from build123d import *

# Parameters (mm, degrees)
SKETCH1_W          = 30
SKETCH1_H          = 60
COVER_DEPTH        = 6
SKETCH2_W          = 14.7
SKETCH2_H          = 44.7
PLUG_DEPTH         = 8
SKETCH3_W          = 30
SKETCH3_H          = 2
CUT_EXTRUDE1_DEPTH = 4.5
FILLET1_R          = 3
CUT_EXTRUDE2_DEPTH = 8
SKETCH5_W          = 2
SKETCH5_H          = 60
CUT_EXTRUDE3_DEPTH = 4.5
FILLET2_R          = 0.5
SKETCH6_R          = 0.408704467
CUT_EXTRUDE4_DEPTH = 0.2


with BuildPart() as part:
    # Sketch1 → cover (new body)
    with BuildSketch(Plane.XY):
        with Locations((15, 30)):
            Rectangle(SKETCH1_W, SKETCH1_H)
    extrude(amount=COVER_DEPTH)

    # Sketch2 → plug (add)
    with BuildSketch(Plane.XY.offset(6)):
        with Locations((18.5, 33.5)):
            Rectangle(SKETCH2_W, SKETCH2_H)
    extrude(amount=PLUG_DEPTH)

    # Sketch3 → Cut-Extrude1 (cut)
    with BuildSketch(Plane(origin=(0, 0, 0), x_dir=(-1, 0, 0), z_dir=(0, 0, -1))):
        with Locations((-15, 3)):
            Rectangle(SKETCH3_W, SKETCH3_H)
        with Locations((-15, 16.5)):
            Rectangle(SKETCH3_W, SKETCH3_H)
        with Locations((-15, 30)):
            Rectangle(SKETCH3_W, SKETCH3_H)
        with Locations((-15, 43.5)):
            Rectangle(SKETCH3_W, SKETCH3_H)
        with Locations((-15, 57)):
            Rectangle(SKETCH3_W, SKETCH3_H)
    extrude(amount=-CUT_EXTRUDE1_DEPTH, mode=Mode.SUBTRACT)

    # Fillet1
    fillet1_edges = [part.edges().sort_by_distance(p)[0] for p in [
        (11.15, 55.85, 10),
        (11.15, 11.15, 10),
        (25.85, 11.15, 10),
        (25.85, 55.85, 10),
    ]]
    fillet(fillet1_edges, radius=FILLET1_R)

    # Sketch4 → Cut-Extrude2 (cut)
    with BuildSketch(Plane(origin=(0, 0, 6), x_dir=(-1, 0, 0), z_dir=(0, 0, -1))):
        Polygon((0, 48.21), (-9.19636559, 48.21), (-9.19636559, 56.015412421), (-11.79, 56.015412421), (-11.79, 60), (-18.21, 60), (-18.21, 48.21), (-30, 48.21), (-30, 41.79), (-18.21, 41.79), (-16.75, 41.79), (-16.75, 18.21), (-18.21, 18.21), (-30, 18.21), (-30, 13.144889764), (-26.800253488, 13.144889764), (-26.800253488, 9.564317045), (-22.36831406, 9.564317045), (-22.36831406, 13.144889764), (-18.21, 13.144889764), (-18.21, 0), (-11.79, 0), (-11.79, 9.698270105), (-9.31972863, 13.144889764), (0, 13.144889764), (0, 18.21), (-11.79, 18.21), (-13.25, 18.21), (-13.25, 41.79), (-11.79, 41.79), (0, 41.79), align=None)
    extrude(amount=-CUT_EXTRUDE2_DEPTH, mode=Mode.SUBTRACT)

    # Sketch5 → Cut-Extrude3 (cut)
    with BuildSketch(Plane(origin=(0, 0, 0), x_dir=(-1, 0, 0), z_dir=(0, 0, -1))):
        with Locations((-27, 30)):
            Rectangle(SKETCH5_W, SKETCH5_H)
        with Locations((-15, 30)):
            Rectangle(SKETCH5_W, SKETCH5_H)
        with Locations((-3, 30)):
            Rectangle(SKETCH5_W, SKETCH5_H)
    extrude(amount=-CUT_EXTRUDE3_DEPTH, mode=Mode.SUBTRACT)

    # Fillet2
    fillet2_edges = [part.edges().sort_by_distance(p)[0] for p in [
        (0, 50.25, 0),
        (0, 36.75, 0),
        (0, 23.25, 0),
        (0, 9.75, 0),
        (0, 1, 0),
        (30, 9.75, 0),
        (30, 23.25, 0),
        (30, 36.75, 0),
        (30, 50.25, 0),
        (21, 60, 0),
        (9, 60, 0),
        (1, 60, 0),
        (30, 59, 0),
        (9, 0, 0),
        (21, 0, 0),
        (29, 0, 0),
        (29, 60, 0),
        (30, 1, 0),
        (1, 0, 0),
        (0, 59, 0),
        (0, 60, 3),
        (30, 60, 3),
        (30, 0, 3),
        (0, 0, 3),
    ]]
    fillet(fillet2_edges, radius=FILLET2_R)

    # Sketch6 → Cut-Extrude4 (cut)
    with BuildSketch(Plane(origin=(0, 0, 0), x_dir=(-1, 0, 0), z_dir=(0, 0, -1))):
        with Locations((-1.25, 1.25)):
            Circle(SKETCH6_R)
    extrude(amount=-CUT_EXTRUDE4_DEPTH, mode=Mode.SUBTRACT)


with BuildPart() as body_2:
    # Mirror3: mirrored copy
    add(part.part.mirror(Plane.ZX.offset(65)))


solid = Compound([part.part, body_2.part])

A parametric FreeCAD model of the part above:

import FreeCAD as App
import Part
import Sketcher

V = App.Vector
Q = App.Units.Quantity


def edges_at(feature, points):
    """Names of the edges that pass closest to the given points."""
    edges = feature.Shape.Edges
    near = lambda p: min(range(len(edges)), key=lambda i: edges[i].distToShape(Part.Vertex(*p))[0])
    return sorted({f"Edge{near(p) + 1}" for p in points})


def add_polygon(sketch, points):
    """Adds a closed chain of lines whose ends are joined by coincident constraints."""
    first, n = sketch.GeometryCount, len(points)
    for a, b in zip(points, points[1:] + points[:1]):
        sketch.addGeometry(Part.LineSegment(App.Vector(*a, 0), App.Vector(*b, 0)), False)
    for i in range(n):
        sketch.addConstraint(Sketcher.Constraint("Coincident", first + i, 2, first + (i + 1) % n, 1))

doc = App.newDocument("Part")
body = doc.addObject("PartDesign::Body", "Body")

sketch1 = doc.addObject("Sketcher::SketchObject", "Sketch")
body.addObject(sketch1)
sketch1.AttachmentSupport = (doc.XY_Plane, [""])
sketch1.MapMode = "FlatFace"
add_polygon(sketch1, [(0, 60), (0, 0), (30, 0), (30, 60)])
sketch1.addConstraint([
    Sketcher.Constraint("Vertical", 0),
    Sketcher.Constraint("Horizontal", 1),
    Sketcher.Constraint("Vertical", 2),
    Sketcher.Constraint("Horizontal", 3),
    Sketcher.Constraint("Coincident", 0, 2, -1, 1),
    Sketcher.Constraint("DistanceX", 1, 1, 1, 2, Q("30 mm")),
    Sketcher.Constraint("DistanceY", 0, 2, 0, 1, Q("60 mm")),
])
pad1 = doc.addObject("PartDesign::Pad", "Pad")
body.addObject(pad1)
pad1.Profile = sketch1
pad1.Length = 6

sketch2 = doc.addObject("Sketcher::SketchObject", "Sketch001")
body.addObject(sketch2)
sketch2.AttachmentSupport = (doc.XY_Plane, [""])
sketch2.MapMode = "FlatFace"
sketch2.AttachmentOffset = App.Placement(V(0, 0, 6), App.Rotation())
add_polygon(sketch2, [(11, 56), (11, 11), (26, 11), (26, 56)])
sketch2.addConstraint([
    Sketcher.Constraint("Vertical", 0),
    Sketcher.Constraint("Horizontal", 1),
    Sketcher.Constraint("Vertical", 2),
    Sketcher.Constraint("Horizontal", 3),
    Sketcher.Constraint("DistanceX", 1, 1, 1, 2, Q("14.7 mm")),
    Sketcher.Constraint("DistanceY", 0, 2, 0, 1, Q("44.7 mm")),
    Sketcher.Constraint("DistanceX", -1, 1, 0, 2, Q("11.15 mm")),
    Sketcher.Constraint("DistanceY", -1, 1, 0, 2, Q("11.15 mm")),
])
pad2 = doc.addObject("PartDesign::Pad", "Pad001")
body.addObject(pad2)
pad2.Profile = sketch2
pad2.Length = 8

sketch3 = doc.addObject("Sketcher::SketchObject", "Sketch002")
body.addObject(sketch3)
sketch3.AttachmentSupport = (doc.XY_Plane, [""])
sketch3.MapMode = "FlatFace"
add_polygon(sketch3, [(30, 4), (30, 2), (0, 2), (0, 4)])
add_polygon(sketch3, [(30, 17.5), (30, 15.5), (0, 15.5), (0, 17.5)])
add_polygon(sketch3, [(30, 31), (30, 29), (0, 29), (0, 31)])
add_polygon(sketch3, [(30, 44.5), (30, 42.5), (0, 42.5), (0, 44.5)])
add_polygon(sketch3, [(30, 58), (30, 56), (0, 56), (0, 58)])
sketch3.addConstraint([
    Sketcher.Constraint("Vertical", 0),
    Sketcher.Constraint("Horizontal", 1),
    Sketcher.Constraint("Vertical", 2),
    Sketcher.Constraint("Horizontal", 3),
    Sketcher.Constraint("Vertical", 4),
    Sketcher.Constraint("Horizontal", 5),
    Sketcher.Constraint("Vertical", 6),
    Sketcher.Constraint("Horizontal", 7),
    Sketcher.Constraint("Vertical", 8),
    Sketcher.Constraint("Horizontal", 9),
    Sketcher.Constraint("Vertical", 10),
    Sketcher.Constraint("Horizontal", 11),
    Sketcher.Constraint("Vertical", 12),
    Sketcher.Constraint("Horizontal", 13),
    Sketcher.Constraint("Vertical", 14),
    Sketcher.Constraint("Horizontal", 15),
    Sketcher.Constraint("Vertical", 16),
    Sketcher.Constraint("Horizontal", 17),
    Sketcher.Constraint("Vertical", 18),
    Sketcher.Constraint("Horizontal", 19),
    Sketcher.Constraint("PointOnObject", 1, 2, -2),
    Sketcher.Constraint("PointOnObject", 5, 2, -2),
    Sketcher.Constraint("PointOnObject", 9, 2, -2),
    Sketcher.Constraint("PointOnObject", 13, 2, -2),
    Sketcher.Constraint("PointOnObject", 17, 2, -2),
    Sketcher.Constraint("Vertical", 3, 2, 4, 2),
    Sketcher.Constraint("Vertical", 7, 2, 8, 2),
    Sketcher.Constraint("Vertical", 11, 2, 12, 2),
    Sketcher.Constraint("Vertical", 15, 2, 16, 2),
    Sketcher.Constraint("Equal", 2, 4),
    Sketcher.Constraint("Equal", 6, 8),
    Sketcher.Constraint("Equal", 10, 12),
    Sketcher.Constraint("Equal", 14, 16),
    Sketcher.Constraint("DistanceX", 1, 2, 1, 1, Q("30 mm")),
    Sketcher.Constraint("DistanceY", 0, 2, 0, 1, Q("2 mm")),
    Sketcher.Constraint("DistanceY", -1, 1, 0, 2, Q("2 mm")),
    Sketcher.Constraint("DistanceY", -1, 1, 8, 2, Q("29 mm")),
    Sketcher.Constraint("DistanceY", -1, 1, 16, 2, Q("56 mm")),
    Sketcher.Constraint("DistanceY", 7, 2, 12, 2, Q("25 mm")),
    Sketcher.Constraint("DistanceY", -1, 1, 4, 2, Q("15.5 mm")),
])
pocket1 = doc.addObject("PartDesign::Pocket", "Pocket")
body.addObject(pocket1)
pocket1.Profile = sketch3
pocket1.Length = 4.5
pocket1.Reversed = True
doc.recompute()

fillet = doc.addObject("PartDesign::Fillet", "Fillet")
body.addObject(fillet)
fillet.Base = (pocket1, edges_at(pocket1, [
    (11.15, 55.85, 10),
    (11.15, 11.15, 10),
    (25.85, 11.15, 10),
    (25.85, 55.85, 10),
]))
fillet.Radius = 3

sketch4 = doc.addObject("Sketcher::SketchObject", "Sketch003")
body.addObject(sketch4)
sketch4.AttachmentSupport = (doc.XY_Plane, [""])
sketch4.MapMode = "FlatFace"
sketch4.AttachmentOffset = App.Placement(V(0, 0, 6), App.Rotation())
add_polygon(sketch4, [(0, 48.2), (9.2, 48.2), (9.2, 56), (11.8, 56), (11.8, 60), (18.2, 60), (18.2, 48.2), (30, 48.2), (30, 41.8), (16.8, 41.8), (16.8, 18.2), (30, 18.2), (30, 13.1), (26.8, 13.1), (26.8, 9.6), (22.4, 9.6), (22.4, 13.1), (18.2, 13.1), (18.2, 0), (11.8, 0), (11.8, 9.7), (9.3, 13.1), (0, 13.1), (0, 18.2), (13.2, 18.2), (13.2, 41.8), (0, 41.8)])
sketch4.addConstraint([
    Sketcher.Constraint("Horizontal", 0),
    Sketcher.Constraint("Vertical", 1),
    Sketcher.Constraint("Horizontal", 2),
    Sketcher.Constraint("Vertical", 3),
    Sketcher.Constraint("Horizontal", 4),
    Sketcher.Constraint("Vertical", 5),
    Sketcher.Constraint("Horizontal", 6),
    Sketcher.Constraint("Vertical", 7),
    Sketcher.Constraint("Horizontal", 8),
    Sketcher.Constraint("Vertical", 9),
    Sketcher.Constraint("Horizontal", 10),
    Sketcher.Constraint("Vertical", 11),
    Sketcher.Constraint("Horizontal", 12),
    Sketcher.Constraint("Vertical", 13),
    Sketcher.Constraint("Horizontal", 14),
    Sketcher.Constraint("Vertical", 15),
    Sketcher.Constraint("Horizontal", 16),
    Sketcher.Constraint("Vertical", 17),
    Sketcher.Constraint("Horizontal", 18),
    Sketcher.Constraint("Vertical", 19),
    Sketcher.Constraint("Horizontal", 21),
    Sketcher.Constraint("Vertical", 22),
    Sketcher.Constraint("Horizontal", 23),
    Sketcher.Constraint("Vertical", 24),
    Sketcher.Constraint("Horizontal", 25),
    Sketcher.Constraint("Vertical", 26),
    Sketcher.Constraint("PointOnObject", 17, 2, -1),
    Sketcher.Constraint("PointOnObject", 21, 2, -2),
    Sketcher.Constraint("PointOnObject", 25, 2, -2),
    Sketcher.Constraint("Horizontal", 0, 2, 5, 2),
    Sketcher.Constraint("Horizontal", 12, 2, 15, 2),
    Sketcher.Constraint("Horizontal", 16, 2, 20, 2),
    Sketcher.Constraint("Horizontal", 10, 2, 22, 2),
    Sketcher.Constraint("Horizontal", 8, 2, 24, 2),
    Sketcher.Constraint("Vertical", 7, 2, 10, 2),
    Sketcher.Constraint("Vertical", 5, 2, 16, 2),
    Sketcher.Constraint("Vertical", 3, 2, 18, 2),
    Sketcher.Constraint("Equal", 10, 23),
    Sketcher.Constraint("Equal", 6, 5),
    Sketcher.Constraint("Equal", 18, 7),
    Sketcher.Constraint("DistanceY", -1, 1, 3, 2, Q("60 mm")),
    Sketcher.Constraint("DistanceX", -1, 1, 6, 2, Q("30 mm")),
    Sketcher.Constraint("DistanceY", 9, 2, 5, 2, Q("30 mm")),
    Sketcher.Constraint("DistanceX", 4, 1, 4, 2, Q("6.42 mm")),
    Sketcher.Constraint("DistanceX", 6, 1, 6, 2, Q("11.79 mm")),
    Sketcher.Constraint("DistanceX", 8, 2, 8, 1, Q("13.25 mm")),
    Sketcher.Constraint("DistanceX", 14, 2, 14, 1, Q("4.431939 mm")),
    Sketcher.Constraint("DistanceX", 21, 2, 21, 1, Q("9.319729 mm")),
    Sketcher.Constraint("DistanceY", 11, 2, 11, 1, Q("5.06511 mm")),
    Sketcher.Constraint("DistanceY", 19, 1, 19, 2, Q("9.69827 mm")),
    Sketcher.Constraint("DistanceX", 0, 1, 0, 2, Q("9.196366 mm")),
    Sketcher.Constraint("DistanceX", 12, 2, 12, 1, Q("3.199747 mm")),
    Sketcher.Constraint("DistanceY", 1, 1, 1, 2, Q("7.805412 mm")),
    Sketcher.Constraint("DistanceY", 13, 2, 13, 1, Q("3.580573 mm")),
])
pocket2 = doc.addObject("PartDesign::Pocket", "Pocket001")
body.addObject(pocket2)
pocket2.Profile = sketch4
pocket2.Length = 8
pocket2.Reversed = True

sketch5 = doc.addObject("Sketcher::SketchObject", "Sketch004")
body.addObject(sketch5)
sketch5.AttachmentSupport = (doc.XY_Plane, [""])
sketch5.MapMode = "FlatFace"
add_polygon(sketch5, [(28, 60), (28, 0), (26, 0), (26, 60)])
add_polygon(sketch5, [(16, 60), (16, 0), (14, 0), (14, 60)])
add_polygon(sketch5, [(4, 60), (4, 0), (2, 0), (2, 60)])
sketch5.addConstraint([
    Sketcher.Constraint("Vertical", 0),
    Sketcher.Constraint("Horizontal", 1),
    Sketcher.Constraint("Vertical", 2),
    Sketcher.Constraint("Horizontal", 3),
    Sketcher.Constraint("Vertical", 4),
    Sketcher.Constraint("Horizontal", 5),
    Sketcher.Constraint("Vertical", 6),
    Sketcher.Constraint("Horizontal", 7),
    Sketcher.Constraint("Vertical", 8),
    Sketcher.Constraint("Horizontal", 9),
    Sketcher.Constraint("Vertical", 10),
    Sketcher.Constraint("Horizontal", 11),
    Sketcher.Constraint("PointOnObject", 0, 2, -1),
    Sketcher.Constraint("PointOnObject", 4, 2, -1),
    Sketcher.Constraint("PointOnObject", 8, 2, -1),
    Sketcher.Constraint("Horizontal", 3, 2, 6, 2),
    Sketcher.Constraint("Horizontal", 7, 2, 10, 2),
    Sketcher.Constraint("Equal", 3, 5),
    Sketcher.Constraint("Equal", 7, 9),
    Sketcher.Constraint("DistanceX", 1, 2, 1, 1, Q("2 mm")),
    Sketcher.Constraint("DistanceY", 0, 2, 0, 1, Q("60 mm")),
    Sketcher.Constraint("DistanceX", -1, 1, 0, 2, Q("28 mm")),
    Sketcher.Constraint("DistanceX", -1, 1, 4, 2, Q("16 mm")),
    Sketcher.Constraint("DistanceX", -1, 1, 8, 2, Q("4 mm")),
])
pocket3 = doc.addObject("PartDesign::Pocket", "Pocket002")
body.addObject(pocket3)
pocket3.Profile = sketch5
pocket3.Length = 4.5
pocket3.Reversed = True
doc.recompute()

fillet2 = doc.addObject("PartDesign::Fillet", "Fillet001")
body.addObject(fillet2)
fillet2.Base = (pocket3, edges_at(pocket3, [
    (0, 50.25, 0),
    (0, 36.75, 0),
    (0, 23.25, 0),
    (0, 9.75, 0),
    (0, 1, 0),
    (30, 9.75, 0),
    (30, 23.25, 0),
    (30, 36.75, 0),
    (30, 50.25, 0),
    (21, 60, 0),
    (9, 60, 0),
    (1, 60, 0),
    (30, 59, 0),
    (9, 0, 0),
    (21, 0, 0),
    (29, 0, 0),
    (29, 60, 0),
    (30, 1, 0),
    (1, 0, 0),
    (0, 59, 0),
    (0, 60, 3),
    (30, 60, 3),
    (30, 0, 3),
    (0, 0, 3),
]))
fillet2.Radius = 0.5

sketch6 = doc.addObject("Sketcher::SketchObject", "Sketch005")
body.addObject(sketch6)
sketch6.AttachmentSupport = (doc.XY_Plane, [""])
sketch6.MapMode = "FlatFace"
sketch6.addGeometry(Part.Circle(V(1.25, 1.25, 0), V(0, 0, 1), 0.41), False)
sketch6.addConstraint([
    Sketcher.Constraint("Diameter", 0, Q("0.817409 mm")),
    Sketcher.Constraint("DistanceX", -1, 1, 0, 3, Q("1.25 mm")),
    Sketcher.Constraint("DistanceY", -1, 1, 0, 3, Q("1.25 mm")),
])
pocket4 = doc.addObject("PartDesign::Pocket", "Pocket003")
body.addObject(pocket4)
pocket4.Profile = sketch6
pocket4.Length = 0.2
pocket4.Reversed = True
body2 = doc.addObject("PartDesign::Body", "Body001")
doc.recompute()

mirroring = doc.addObject("Part::Mirroring", "Mirroring")
mirroring.Source = body
mirroring.Base = V(0, 65, 0)
mirroring.Normal = V(0, 1, 0)
body2.BaseFeature = mirroring
doc.recompute()
mirroring.Visibility = False

doc.recompute()
